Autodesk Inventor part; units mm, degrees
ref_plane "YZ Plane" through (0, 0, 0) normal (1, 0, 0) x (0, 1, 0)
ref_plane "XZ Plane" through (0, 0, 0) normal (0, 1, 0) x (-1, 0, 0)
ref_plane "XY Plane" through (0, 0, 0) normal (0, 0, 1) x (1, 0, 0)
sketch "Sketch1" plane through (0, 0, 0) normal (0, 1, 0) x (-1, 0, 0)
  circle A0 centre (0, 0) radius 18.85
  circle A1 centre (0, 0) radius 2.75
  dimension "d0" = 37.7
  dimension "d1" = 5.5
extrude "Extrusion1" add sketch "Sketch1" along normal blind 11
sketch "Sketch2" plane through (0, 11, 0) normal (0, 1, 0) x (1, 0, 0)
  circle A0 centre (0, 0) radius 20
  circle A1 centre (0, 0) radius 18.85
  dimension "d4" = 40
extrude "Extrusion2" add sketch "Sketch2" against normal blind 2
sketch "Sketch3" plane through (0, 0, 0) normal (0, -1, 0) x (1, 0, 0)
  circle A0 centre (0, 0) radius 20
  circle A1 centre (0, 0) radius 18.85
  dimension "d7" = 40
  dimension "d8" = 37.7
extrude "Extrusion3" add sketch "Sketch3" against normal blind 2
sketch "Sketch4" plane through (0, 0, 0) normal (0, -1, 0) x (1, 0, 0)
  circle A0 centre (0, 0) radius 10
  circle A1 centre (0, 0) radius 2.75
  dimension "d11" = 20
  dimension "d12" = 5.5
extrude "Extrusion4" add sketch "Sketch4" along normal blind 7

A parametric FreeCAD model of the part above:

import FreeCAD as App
import Part
import Sketcher
from FreeCAD import Vector
Q = App.Units.Quantity

doc = App.newDocument("Part")
body = doc.addObject("PartDesign::Body", "Body")

# Sketch on XZ plane
sketch1 = body.newObject("Sketcher::SketchObject", "Sketch")
sketch1.AttachmentSupport = (doc.getObject("XZ_Plane"), [""])
sketch1.MapMode = "FlatFace"
sketch1.addGeometry([
    Part.Circle(Vector(0, 0, 0), Vector(0, 0, 1), 18.9),
    Part.Circle(Vector(0, 0, 0), Vector(0, 0, 1), 2.8),
], False)
sketch1.addConstraint([
    Sketcher.Constraint("Coincident", 0, 3, -1, 1),
    Sketcher.Constraint("Coincident", 1, 3, -1, 1),
    Sketcher.Constraint("Diameter", 0, Q("37.7 mm")),
    Sketcher.Constraint("Diameter", 1, Q("5.5 mm")),
])
pad1 = body.newObject("PartDesign::Pad", "Pad")
pad1.Profile = sketch1
pad1.Length = 11
pad1.Reversed = True

# Sketch on XZ plane
sketch2 = body.newObject("Sketcher::SketchObject", "Sketch001")
sketch2.AttachmentSupport = (doc.getObject("XZ_Plane"), [""])
sketch2.MapMode = "FlatFace"
sketch2.AttachmentOffset = App.Placement(Vector(0, 0, -11), App.Rotation())
sketch2.addGeometry([
    Part.Circle(Vector(0, 0, 0), Vector(0, 0, 1), 20),
    Part.Circle(Vector(0, 0, 0), Vector(0, 0, 1), 19),
], False)
sketch2.addConstraint([
    Sketcher.Constraint("Coincident", 0, 3, -1, 1),
    Sketcher.Constraint("Coincident", 1, 3, -1, 1),
    Sketcher.Constraint("Diameter", 0, Q("40 mm")),
    Sketcher.Constraint("Diameter", 1, Q("37.7 mm")),
])
pad2 = body.newObject("PartDesign::Pad", "Pad001")
pad2.Profile = sketch2
pad2.Length = 2

# Sketch on XZ plane
sketch3 = body.newObject("Sketcher::SketchObject", "Sketch002")
sketch3.AttachmentSupport = (doc.getObject("XZ_Plane"), [""])
sketch3.MapMode = "FlatFace"
sketch3.addGeometry([
    Part.Circle(Vector(0, 0, 0), Vector(0, 0, 1), 20),
    Part.Circle(Vector(0, 0, 0), Vector(0, 0, 1), 19),
], False)
sketch3.addConstraint([
    Sketcher.Constraint("Coincident", 0, 3, -1, 1),
    Sketcher.Constraint("Coincident", 1, 3, -1, 1),
    Sketcher.Constraint("Diameter", 0, Q("40 mm")),
    Sketcher.Constraint("Diameter", 1, Q("37.7 mm")),
])
pad3 = body.newObject("PartDesign::Pad", "Pad002")
pad3.Profile = sketch3
pad3.Length = 2
pad3.Reversed = True

# Sketch on XZ plane
sketch4 = body.newObject("Sketcher::SketchObject", "Sketch003")
sketch4.AttachmentSupport = (doc.getObject("XZ_Plane"), [""])
sketch4.MapMode = "FlatFace"
sketch4.addGeometry([
    Part.Circle(Vector(0, 0, 0), Vector(0, 0, 1), 10),
    Part.Circle(Vector(0, 0, 0), Vector(0, 0, 1), 2.8),
], False)
sketch4.addConstraint([
    Sketcher.Constraint("Coincident", 0, 3, -1, 1),
    Sketcher.Constraint("Coincident", 1, 3, -1, 1),
    Sketcher.Constraint("Diameter", 0, Q("20 mm")),
    Sketcher.Constraint("Diameter", 1, Q("5.5 mm")),
])
pad4 = body.newObject("PartDesign::Pad", "Pad003")
pad4.Profile = sketch4
pad4.Length = 7

doc.recompute()
